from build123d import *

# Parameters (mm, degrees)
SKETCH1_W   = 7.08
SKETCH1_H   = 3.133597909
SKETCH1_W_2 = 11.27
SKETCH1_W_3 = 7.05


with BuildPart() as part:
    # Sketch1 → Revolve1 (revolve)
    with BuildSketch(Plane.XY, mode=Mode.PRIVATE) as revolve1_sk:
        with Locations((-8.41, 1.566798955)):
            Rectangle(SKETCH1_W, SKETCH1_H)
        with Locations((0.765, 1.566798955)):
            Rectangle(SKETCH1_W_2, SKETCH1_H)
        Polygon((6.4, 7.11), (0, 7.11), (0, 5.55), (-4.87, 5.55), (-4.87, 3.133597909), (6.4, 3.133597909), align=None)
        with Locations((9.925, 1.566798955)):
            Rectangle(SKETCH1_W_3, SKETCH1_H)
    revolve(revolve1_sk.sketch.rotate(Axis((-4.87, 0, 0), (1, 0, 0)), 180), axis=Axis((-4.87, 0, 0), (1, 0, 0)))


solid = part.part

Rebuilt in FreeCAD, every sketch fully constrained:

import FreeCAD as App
import Part
import Sketcher
from FreeCAD import Vector


def add_polygon(sketch, points):
    """Adds a closed chain of lines whose ends are joined by coincident constraints."""
    first, n = sketch.GeometryCount, len(points)
    for a, b in zip(points, points[1:] + points[:1]):
        sketch.addGeometry(Part.LineSegment(App.Vector(*a, 0), App.Vector(*b, 0)), False)
    for i in range(n):
        sketch.addConstraint(Sketcher.Constraint("Coincident", first + i, 2, first + (i + 1) % n, 1))

doc = App.newDocument("Part")
body = doc.addObject("PartDesign::Body", "Body")

sketch1 = body.newObject("Sketcher::SketchObject", "Sketch")
sketch1.AttachmentSupport = (doc.getObject("XY_Plane"), [""])
sketch1.MapMode = "FlatFace"
add_polygon(sketch1, [(-11.9, 3.1), (-11.9, 0), (13.4, 0), (13.4, 3.1), (6.4, 3.1), (6.4, 7.1), (0, 7.1), (0, 5.5), (-4.9, 5.5), (-4.9, 3.1)])
sketch1.addConstraint([
    Sketcher.Constraint("Vertical", 0),
    Sketcher.Constraint("Horizontal", 1),
    Sketcher.Constraint("Vertical", 2),
    Sketcher.Constraint("Horizontal", 3),
    Sketcher.Constraint("Vertical", 4),
    Sketcher.Constraint("Horizontal", 5),
    Sketcher.Constraint("Vertical", 6),
    Sketcher.Constraint("Horizontal", 7),
    Sketcher.Constraint("Vertical", 8),
    Sketcher.Constraint("Horizontal", 9),
    Sketcher.Constraint("PointOnObject", 0, 2, -1),
    Sketcher.Constraint("PointOnObject", 5, 2, -2),
    Sketcher.Constraint("Horizontal", 3, 2, 8, 2),
    Sketcher.Constraint("DistanceX", 1, 1, 1, 2, 25.4),
    Sketcher.Constraint("DistanceX", 5, 2, 5, 1, 6.4),
    Sketcher.Constraint("DistanceX", 3, 2, 3, 1, 7.05),
    Sketcher.Constraint("DistanceX", 7, 2, 7, 1, 4.87),
    Sketcher.Constraint("DistanceY", 6, 2, 6, 1, 1.56),
    Sketcher.Constraint("DistanceY", -1, 1, 4, 2, 7.11),
    Sketcher.Constraint("DistanceY", 0, 2, 0, 1, 3.133598),
])
revolution = body.newObject("PartDesign::Revolution", "Revolution")
revolution.Profile = sketch1
revolution.ReferenceAxis = (sketch1, ["H_Axis"])
revolution.Angle = 360

doc.recompute()
